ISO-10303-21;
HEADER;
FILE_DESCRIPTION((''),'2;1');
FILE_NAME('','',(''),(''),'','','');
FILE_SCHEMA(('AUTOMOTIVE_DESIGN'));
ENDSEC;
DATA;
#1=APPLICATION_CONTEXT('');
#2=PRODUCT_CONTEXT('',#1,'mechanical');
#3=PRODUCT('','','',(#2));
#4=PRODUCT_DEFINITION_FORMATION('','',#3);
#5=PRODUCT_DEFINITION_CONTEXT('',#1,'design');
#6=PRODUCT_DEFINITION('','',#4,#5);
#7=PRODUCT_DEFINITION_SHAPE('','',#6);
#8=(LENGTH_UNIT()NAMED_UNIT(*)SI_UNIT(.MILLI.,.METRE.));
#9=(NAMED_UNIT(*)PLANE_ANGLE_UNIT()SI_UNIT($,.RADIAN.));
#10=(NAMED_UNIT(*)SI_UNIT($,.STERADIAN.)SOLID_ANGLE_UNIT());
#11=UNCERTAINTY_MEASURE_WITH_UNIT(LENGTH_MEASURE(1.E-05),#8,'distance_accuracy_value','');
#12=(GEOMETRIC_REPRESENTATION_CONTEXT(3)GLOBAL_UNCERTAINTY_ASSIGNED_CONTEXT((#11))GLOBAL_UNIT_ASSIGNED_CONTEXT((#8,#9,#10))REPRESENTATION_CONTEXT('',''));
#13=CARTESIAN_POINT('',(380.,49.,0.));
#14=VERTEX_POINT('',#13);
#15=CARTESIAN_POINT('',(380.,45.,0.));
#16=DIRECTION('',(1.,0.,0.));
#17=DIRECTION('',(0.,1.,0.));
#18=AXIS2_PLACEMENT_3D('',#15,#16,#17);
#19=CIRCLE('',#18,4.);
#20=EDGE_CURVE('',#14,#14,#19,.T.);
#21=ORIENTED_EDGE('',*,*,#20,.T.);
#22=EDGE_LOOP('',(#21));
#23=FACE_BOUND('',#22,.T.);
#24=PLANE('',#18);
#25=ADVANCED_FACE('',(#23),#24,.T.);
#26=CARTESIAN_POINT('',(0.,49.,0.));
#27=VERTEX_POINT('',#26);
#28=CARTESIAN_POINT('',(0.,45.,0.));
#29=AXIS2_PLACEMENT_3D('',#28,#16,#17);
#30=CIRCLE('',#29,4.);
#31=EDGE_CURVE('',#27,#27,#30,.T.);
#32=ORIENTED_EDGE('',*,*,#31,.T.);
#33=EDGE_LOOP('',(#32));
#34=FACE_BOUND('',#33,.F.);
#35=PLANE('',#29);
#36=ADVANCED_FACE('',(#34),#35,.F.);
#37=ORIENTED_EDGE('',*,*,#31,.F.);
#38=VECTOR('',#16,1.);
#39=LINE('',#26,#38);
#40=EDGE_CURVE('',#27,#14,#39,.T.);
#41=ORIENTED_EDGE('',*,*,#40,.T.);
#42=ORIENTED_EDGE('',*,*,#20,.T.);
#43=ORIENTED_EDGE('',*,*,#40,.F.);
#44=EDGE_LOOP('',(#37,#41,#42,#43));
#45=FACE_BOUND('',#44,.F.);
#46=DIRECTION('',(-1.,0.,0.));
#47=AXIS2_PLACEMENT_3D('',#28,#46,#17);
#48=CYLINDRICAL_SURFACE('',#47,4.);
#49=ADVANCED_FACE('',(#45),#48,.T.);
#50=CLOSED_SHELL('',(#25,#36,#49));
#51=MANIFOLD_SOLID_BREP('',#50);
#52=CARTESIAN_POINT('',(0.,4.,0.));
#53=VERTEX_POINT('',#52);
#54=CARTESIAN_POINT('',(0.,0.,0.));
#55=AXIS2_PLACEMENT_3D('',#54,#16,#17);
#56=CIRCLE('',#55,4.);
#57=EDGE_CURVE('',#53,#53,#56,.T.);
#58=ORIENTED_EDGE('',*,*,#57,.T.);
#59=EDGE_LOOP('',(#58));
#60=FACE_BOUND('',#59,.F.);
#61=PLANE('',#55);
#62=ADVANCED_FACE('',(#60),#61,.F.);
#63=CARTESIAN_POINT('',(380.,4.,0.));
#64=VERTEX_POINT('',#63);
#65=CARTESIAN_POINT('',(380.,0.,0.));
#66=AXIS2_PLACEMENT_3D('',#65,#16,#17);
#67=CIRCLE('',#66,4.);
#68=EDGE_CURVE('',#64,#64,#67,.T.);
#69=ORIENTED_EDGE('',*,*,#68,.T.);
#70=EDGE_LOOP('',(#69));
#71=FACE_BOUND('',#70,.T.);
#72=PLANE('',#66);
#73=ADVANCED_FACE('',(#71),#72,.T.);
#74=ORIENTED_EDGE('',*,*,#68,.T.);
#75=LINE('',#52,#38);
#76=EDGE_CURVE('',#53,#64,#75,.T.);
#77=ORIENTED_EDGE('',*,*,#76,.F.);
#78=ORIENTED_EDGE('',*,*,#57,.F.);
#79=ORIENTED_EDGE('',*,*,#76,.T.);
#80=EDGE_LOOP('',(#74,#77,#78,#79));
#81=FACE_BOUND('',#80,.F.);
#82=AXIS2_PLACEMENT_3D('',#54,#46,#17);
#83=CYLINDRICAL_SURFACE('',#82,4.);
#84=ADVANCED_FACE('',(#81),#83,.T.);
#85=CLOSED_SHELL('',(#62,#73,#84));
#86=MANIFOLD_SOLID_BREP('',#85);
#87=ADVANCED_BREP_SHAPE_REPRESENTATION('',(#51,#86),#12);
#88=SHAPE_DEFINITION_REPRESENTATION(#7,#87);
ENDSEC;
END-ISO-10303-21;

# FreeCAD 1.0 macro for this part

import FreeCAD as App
import Part
import Sketcher
from FreeCAD import Vector
Q = App.Units.Quantity

doc = App.newDocument("Part")
body = doc.addObject("PartDesign::Body", "Body")
body.AllowCompound = True

# Sketch on YZ plane
sketch1 = body.newObject("Sketcher::SketchObject", "Sketch")
sketch1.AttachmentSupport = (doc.getObject("YZ_Plane"), [""])
sketch1.MapMode = "FlatFace"
sketch1.addGeometry(Part.Circle(Vector(0, 0, 0), Vector(0, 0, 1), 4), False)
sketch1.addGeometry(Part.Circle(Vector(45, 0, 0), Vector(0, 0, 1), 4), False)
sketch1.addConstraint(Sketcher.Constraint("Coincident", 0, 3, -1, 1))
sketch1.addConstraint(Sketcher.Constraint("Equal", 0, 1))
sketch1.addConstraint(Sketcher.Constraint("PointOnObject", 1, 3, -1))
sketch1.addConstraint(Sketcher.Constraint("Diameter", 0, Q("8 mm")))
sketch1.addConstraint(Sketcher.Constraint("DistanceX", -1, 1, 1, 3, Q("45 mm")))
pad1 = body.newObject("PartDesign::Pad", "Pad")
pad1.Profile = sketch1
pad1.Length = 380

doc.recompute()
